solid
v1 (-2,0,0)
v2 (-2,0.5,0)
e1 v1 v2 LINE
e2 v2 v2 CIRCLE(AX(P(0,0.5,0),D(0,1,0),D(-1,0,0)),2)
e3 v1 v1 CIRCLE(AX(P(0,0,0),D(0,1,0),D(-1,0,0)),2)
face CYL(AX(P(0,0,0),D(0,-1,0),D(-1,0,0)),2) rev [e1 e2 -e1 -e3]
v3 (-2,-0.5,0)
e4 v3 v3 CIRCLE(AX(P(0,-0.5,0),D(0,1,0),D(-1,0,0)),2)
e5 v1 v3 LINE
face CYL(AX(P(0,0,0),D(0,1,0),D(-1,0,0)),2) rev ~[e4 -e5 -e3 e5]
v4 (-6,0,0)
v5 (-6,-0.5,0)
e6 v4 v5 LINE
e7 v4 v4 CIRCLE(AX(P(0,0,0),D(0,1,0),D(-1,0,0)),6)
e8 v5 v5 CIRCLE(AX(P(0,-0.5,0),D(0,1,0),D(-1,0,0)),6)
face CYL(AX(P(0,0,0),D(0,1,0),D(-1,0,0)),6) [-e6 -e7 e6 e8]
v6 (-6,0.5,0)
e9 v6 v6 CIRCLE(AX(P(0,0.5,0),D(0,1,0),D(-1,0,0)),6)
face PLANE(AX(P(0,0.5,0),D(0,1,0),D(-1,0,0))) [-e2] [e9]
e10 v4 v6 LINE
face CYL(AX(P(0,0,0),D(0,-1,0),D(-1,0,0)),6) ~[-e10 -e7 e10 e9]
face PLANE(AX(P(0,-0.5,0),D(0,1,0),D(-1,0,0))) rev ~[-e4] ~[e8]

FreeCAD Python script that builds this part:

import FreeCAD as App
import Part
import Sketcher
Q = App.Units.Quantity

doc = App.newDocument("Part")
params = doc.addObject("Spreadsheet::Sheet", "Params")
for row, (alias, value) in enumerate([
    ("sketch1_diameter", "12 mm"),
    ("sketch1_diameter2", "4 mm"),
    ("pad1_length", "1 mm"),
], start=1):
    params.set(f"A{row}", alias)
    params.set(f"B{row}", "=" + value)
    params.setAlias(f"B{row}", alias)

body = doc.addObject("PartDesign::Body", "Body")

sketch1 = body.newObject("Sketcher::SketchObject", "Sketch")
sketch1.AttachmentSupport = (doc.getObject("XZ_Plane"), [""])
sketch1.MapMode = "FlatFace"
sketch1.addGeometry([
    Part.Circle(App.Vector(0, 0, 0), App.Vector(0, 0, 1), 6),
    Part.Circle(App.Vector(0, 0, 0), App.Vector(0, 0, 1), 2),
], False)
sketch1.addConstraint([
    Sketcher.Constraint("Coincident", 0, 3, -1, 1),
    Sketcher.Constraint("Coincident", 1, 3, -1, 1),
    Sketcher.Constraint("Diameter", 0, Q("12 mm")),
    Sketcher.Constraint("Diameter", 1, Q("4 mm")),
])
sketch1.setExpression("Constraints[2]", "Params.sketch1_diameter")
sketch1.setExpression("Constraints[3]", "Params.sketch1_diameter2")
pad1 = body.newObject("PartDesign::Pad", "Pad")
pad1.Profile = sketch1
pad1.setExpression("Length", "Params.pad1_length")
pad1.Midplane = True

doc.recompute()
